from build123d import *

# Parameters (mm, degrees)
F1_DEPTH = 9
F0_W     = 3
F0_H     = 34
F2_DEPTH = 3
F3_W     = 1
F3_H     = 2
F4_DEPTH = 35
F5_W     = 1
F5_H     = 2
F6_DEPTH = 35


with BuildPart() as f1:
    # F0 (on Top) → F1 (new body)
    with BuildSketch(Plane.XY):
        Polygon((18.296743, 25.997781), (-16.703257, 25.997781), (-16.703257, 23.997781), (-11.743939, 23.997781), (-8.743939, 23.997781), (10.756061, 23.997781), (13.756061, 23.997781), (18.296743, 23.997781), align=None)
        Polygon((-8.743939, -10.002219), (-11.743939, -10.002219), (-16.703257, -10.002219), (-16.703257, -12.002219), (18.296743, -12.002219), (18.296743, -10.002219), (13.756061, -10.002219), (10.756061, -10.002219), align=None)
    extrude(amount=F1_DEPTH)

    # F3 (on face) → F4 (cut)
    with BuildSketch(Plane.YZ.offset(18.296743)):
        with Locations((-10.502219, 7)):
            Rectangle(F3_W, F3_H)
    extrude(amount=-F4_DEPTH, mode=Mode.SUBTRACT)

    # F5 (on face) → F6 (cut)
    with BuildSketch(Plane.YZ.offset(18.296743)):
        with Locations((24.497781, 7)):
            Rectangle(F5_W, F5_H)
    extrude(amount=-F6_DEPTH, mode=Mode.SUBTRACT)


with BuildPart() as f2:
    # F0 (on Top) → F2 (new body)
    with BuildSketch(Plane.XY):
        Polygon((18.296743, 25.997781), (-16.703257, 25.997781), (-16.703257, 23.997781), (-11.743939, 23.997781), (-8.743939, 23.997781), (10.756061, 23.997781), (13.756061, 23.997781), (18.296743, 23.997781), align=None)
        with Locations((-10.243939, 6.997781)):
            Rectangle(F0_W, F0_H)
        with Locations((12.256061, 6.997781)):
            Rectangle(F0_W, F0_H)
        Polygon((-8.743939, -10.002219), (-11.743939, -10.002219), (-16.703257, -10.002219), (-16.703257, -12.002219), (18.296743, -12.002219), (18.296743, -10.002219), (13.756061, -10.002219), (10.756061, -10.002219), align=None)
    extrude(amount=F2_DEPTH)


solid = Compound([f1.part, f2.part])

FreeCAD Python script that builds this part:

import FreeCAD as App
import Part
import Sketcher

V = App.Vector
Q = App.Units.Quantity

doc = App.newDocument("Part")
body = doc.addObject("PartDesign::Body", "Body")
body.AllowCompound = True

# Sketch on XY plane
sketch1 = doc.addObject("Sketcher::SketchObject", "Sketch")
body.addObject(sketch1)
sketch1.AttachmentSupport = (doc.XY_Plane, [""])
sketch1.MapMode = "FlatFace"
sketch1.addGeometry([
    Part.LineSegment(V(18.3, 26, 0), V(-16.7, 26, 0)),  # 0
    Part.LineSegment(V(-16.7, 26, 0), V(-16.7, 24, 0)),  # 1
    Part.LineSegment(V(-16.7, 24, 0), V(18.3, 24, 0)),  # 2
    Part.LineSegment(V(18.3, 24, 0), V(18.3, 26, 0)),  # 3
    Part.LineSegment(V(-16.7, -10, 0), V(-16.7, -12, 0)),  # 4
    Part.LineSegment(V(-16.7, -12, 0), V(18.3, -12, 0)),  # 5
    Part.LineSegment(V(18.3, -12, 0), V(18.3, -10, 0)),  # 6
    Part.LineSegment(V(18.3, -10, 0), V(-16.7, -10, 0)),  # 7
], False)
sketch1.addConstraint([
    Sketcher.Constraint("Coincident", 0, 2, 1, 1),
    Sketcher.Constraint("Coincident", 1, 2, 2, 1),
    Sketcher.Constraint("Coincident", 2, 2, 3, 1),
    Sketcher.Constraint("Coincident", 3, 2, 0, 1),
    Sketcher.Constraint("Coincident", 4, 2, 5, 1),
    Sketcher.Constraint("Coincident", 5, 2, 6, 1),
    Sketcher.Constraint("Coincident", 6, 2, 7, 1),
    Sketcher.Constraint("Coincident", 7, 2, 4, 1),
    Sketcher.Constraint("Horizontal", 0),
    Sketcher.Constraint("Vertical", 1),
    Sketcher.Constraint("Horizontal", 2),
    Sketcher.Constraint("Vertical", 3),
    Sketcher.Constraint("Vertical", 4),
    Sketcher.Constraint("Horizontal", 5),
    Sketcher.Constraint("Vertical", 6),
    Sketcher.Constraint("Horizontal", 7),
    Sketcher.Constraint("Vertical", 1, 2, 4, 2),
    Sketcher.Constraint("Vertical", 3, 2, 5, 2),
    Sketcher.Constraint("Equal", 3, 4),
    Sketcher.Constraint("DistanceX", 0, 2, 0, 1, Q("35 mm")),
    Sketcher.Constraint("DistanceY", 1, 2, 1, 1, Q("2 mm")),
    Sketcher.Constraint("DistanceY", 4, 2, 1, 2, Q("36 mm")),
    Sketcher.Constraint("DistanceY", -1, 1, 0, 2, Q("25.997781 mm")),
    Sketcher.Constraint("DistanceX", 0, 2, -1, 1, Q("16.703257 mm")),
])
pad1 = doc.addObject("PartDesign::Pad", "Pad")
body.addObject(pad1)
pad1.Profile = sketch1
pad1.Length = 9

# Sketch on YZ plane
sketch2 = doc.addObject("Sketcher::SketchObject", "Sketch001")
body.addObject(sketch2)
sketch2.AttachmentSupport = (doc.YZ_Plane, [""])
sketch2.MapMode = "FlatFace"
sketch2.AttachmentOffset = App.Placement(V(0, 0, 18.296743), App.Rotation())
sketch2.addGeometry([
    Part.LineSegment(V(-11, 8, 0), V(-11, 6, 0)),
    Part.LineSegment(V(-11, 6, 0), V(-10, 6, 0)),
    Part.LineSegment(V(-10, 6, 0), V(-10, 8, 0)),
    Part.LineSegment(V(-10, 8, 0), V(-11, 8, 0)),
], False)
sketch2.addConstraint([
    Sketcher.Constraint("Coincident", 0, 2, 1, 1),
    Sketcher.Constraint("Coincident", 1, 2, 2, 1),
    Sketcher.Constraint("Coincident", 2, 2, 3, 1),
    Sketcher.Constraint("Coincident", 3, 2, 0, 1),
    Sketcher.Constraint("Vertical", 0),
    Sketcher.Constraint("Horizontal", 1),
    Sketcher.Constraint("Vertical", 2),
    Sketcher.Constraint("Horizontal", 3),
    Sketcher.Constraint("DistanceX", 1, 1, 1, 2, Q("1 mm")),
    Sketcher.Constraint("DistanceY", 0, 2, 0, 1, Q("2 mm")),
    Sketcher.Constraint("DistanceY", -1, 1, 0, 2, Q("6 mm")),
    Sketcher.Constraint("DistanceX", 0, 2, -1, 1, Q("11.002219 mm")),
])
pocket1 = doc.addObject("PartDesign::Pocket", "Pocket")
body.addObject(pocket1)
pocket1.Profile = sketch2
pocket1.Length = 35

# Sketch on YZ plane
sketch3 = doc.addObject("Sketcher::SketchObject", "Sketch002")
body.addObject(sketch3)
sketch3.AttachmentSupport = (doc.YZ_Plane, [""])
sketch3.MapMode = "FlatFace"
sketch3.AttachmentOffset = App.Placement(V(0, 0, 18.296743), App.Rotation())
sketch3.addGeometry([
    Part.LineSegment(V(24, 8, 0), V(24, 6, 0)),
    Part.LineSegment(V(24, 6, 0), V(25, 6, 0)),
    Part.LineSegment(V(25, 6, 0), V(25, 8, 0)),
    Part.LineSegment(V(25, 8, 0), V(24, 8, 0)),
], False)
sketch3.addConstraint([
    Sketcher.Constraint("Coincident", 0, 2, 1, 1),
    Sketcher.Constraint("Coincident", 1, 2, 2, 1),
    Sketcher.Constraint("Coincident", 2, 2, 3, 1),
    Sketcher.Constraint("Coincident", 3, 2, 0, 1),
    Sketcher.Constraint("Vertical", 0),
    Sketcher.Constraint("Horizontal", 1),
    Sketcher.Constraint("Vertical", 2),
    Sketcher.Constraint("Horizontal", 3),
    Sketcher.Constraint("DistanceX", 1, 1, 1, 2, Q("1 mm")),
    Sketcher.Constraint("DistanceY", 0, 2, 0, 1, Q("2 mm")),
    Sketcher.Constraint("DistanceY", -1, 1, 0, 2, Q("6 mm")),
    Sketcher.Constraint("DistanceX", -1, 1, 0, 2, Q("23.997781 mm")),
])
pocket2 = doc.addObject("PartDesign::Pocket", "Pocket001")
body.addObject(pocket2)
pocket2.Profile = sketch3
pocket2.Length = 35
body2 = doc.addObject("PartDesign::Body", "Body001")

# Sketch on XY plane
sketch4 = doc.addObject("Sketcher::SketchObject", "Sketch003")
body2.addObject(sketch4)
sketch4.AttachmentSupport = (doc.getObject("XY_Plane001"), [""])
sketch4.MapMode = "FlatFace"
sketch4.addGeometry([
    Part.LineSegment(V(18.3, 26, 0), V(-16.7, 26, 0)),  # 0
    Part.LineSegment(V(-16.7, 26, 0), V(-16.7, 24, 0)),  # 1
    Part.LineSegment(V(-16.7, 24, 0), V(-11.7, 24, 0)),  # 2
    Part.LineSegment(V(-11.7, 24, 0), V(-11.7, -10, 0)),  # 3
    Part.LineSegment(V(-11.7, -10, 0), V(-16.7, -10, 0)),  # 4
    Part.LineSegment(V(-16.7, -10, 0), V(-16.7, -12, 0)),  # 5
    Part.LineSegment(V(-16.7, -12, 0), V(18.3, -12, 0)),  # 6
    Part.LineSegment(V(18.3, -12, 0), V(18.3, -10, 0)),  # 7
    Part.LineSegment(V(18.3, -10, 0), V(13.8, -10, 0)),  # 8
    Part.LineSegment(V(13.8, -10, 0), V(13.8, 24, 0)),  # 9
    Part.LineSegment(V(13.8, 24, 0), V(18.3, 24, 0)),  # 10
    Part.LineSegment(V(18.3, 24, 0), V(18.3, 26, 0)),  # 11
    Part.LineSegment(V(-8.7, -10, 0), V(-8.7, 24, 0)),  # 12
    Part.LineSegment(V(-8.7, 24, 0), V(10.8, 24, 0)),  # 13
    Part.LineSegment(V(10.8, 24, 0), V(10.8, -10, 0)),  # 14
    Part.LineSegment(V(10.8, -10, 0), V(-8.7, -10, 0)),  # 15
], False)
sketch4.addConstraint([
    Sketcher.Constraint("Coincident", 0, 2, 1, 1),
    Sketcher.Constraint("Coincident", 1, 2, 2, 1),
    Sketcher.Constraint("Coincident", 2, 2, 3, 1),
    Sketcher.Constraint("Coincident", 3, 2, 4, 1),
    Sketcher.Constraint("Coincident", 4, 2, 5, 1),
    Sketcher.Constraint("Coincident", 5, 2, 6, 1),
    Sketcher.Constraint("Coincident", 6, 2, 7, 1),
    Sketcher.Constraint("Coincident", 7, 2, 8, 1),
    Sketcher.Constraint("Coincident", 8, 2, 9, 1),
    Sketcher.Constraint("Coincident", 9, 2, 10, 1),
    Sketcher.Constraint("Coincident", 10, 2, 11, 1),
    Sketcher.Constraint("Coincident", 11, 2, 0, 1),
    Sketcher.Constraint("Coincident", 12, 2, 13, 1),
    Sketcher.Constraint("Coincident", 13, 2, 14, 1),
    Sketcher.Constraint("Coincident", 14, 2, 15, 1),
    Sketcher.Constraint("Coincident", 15, 2, 12, 1),
    Sketcher.Constraint("Horizontal", 0),
    Sketcher.Constraint("Vertical", 1),
    Sketcher.Constraint("Horizontal", 2),
    Sketcher.Constraint("Vertical", 3),
    Sketcher.Constraint("Horizontal", 4),
    Sketcher.Constraint("Vertical", 5),
    Sketcher.Constraint("Horizontal", 6),
    Sketcher.Constraint("Vertical", 7),
    Sketcher.Constraint("Horizontal", 8),
    Sketcher.Constraint("Vertical", 9),
    Sketcher.Constraint("Horizontal", 10),
    Sketcher.Constraint("Vertical", 11),
    Sketcher.Constraint("Vertical", 12),
    Sketcher.Constraint("Horizontal", 13),
    Sketcher.Constraint("Vertical", 14),
    Sketcher.Constraint("Horizontal", 15),
    Sketcher.Constraint("Horizontal", 4, 2, 7, 2),
    Sketcher.Constraint("Horizontal", 2, 2, 9, 2),
    Sketcher.Constraint("Horizontal", 10, 2, 12, 2),
    Sketcher.Constraint("Horizontal", 8, 2, 14, 2),
    Sketcher.Constraint("Vertical", 1, 2, 4, 2),
    Sketcher.Constraint("Vertical", 7, 2, 10, 2),
    Sketcher.Constraint("Equal", 1, 5),
    Sketcher.Constraint("DistanceX", 0, 2, 0, 1, Q("35 mm")),
    Sketcher.Constraint("DistanceY", 1, 2, 1, 1, Q("2 mm")),
    Sketcher.Constraint("DistanceY", 3, 2, 3, 1, Q("34 mm")),
    Sketcher.Constraint("DistanceX", 13, 1, 13, 2, Q("19.5 mm")),
    Sketcher.Constraint("DistanceX", 2, 2, 12, 2, Q("3 mm")),
    Sketcher.Constraint("DistanceX", 13, 2, 9, 2, Q("3 mm")),
    Sketcher.Constraint("DistanceX", 2, 1, 2, 2, Q("4.959318 mm")),
    Sketcher.Constraint("DistanceY", -1, 1, 0, 2, Q("25.997781 mm")),
    Sketcher.Constraint("DistanceX", 2, 2, -1, 1, Q("11.743939 mm")),
])
pad2 = doc.addObject("PartDesign::Pad", "Pad001")
body2.addObject(pad2)
pad2.Profile = sketch4
pad2.Length = 3

doc.recompute()
